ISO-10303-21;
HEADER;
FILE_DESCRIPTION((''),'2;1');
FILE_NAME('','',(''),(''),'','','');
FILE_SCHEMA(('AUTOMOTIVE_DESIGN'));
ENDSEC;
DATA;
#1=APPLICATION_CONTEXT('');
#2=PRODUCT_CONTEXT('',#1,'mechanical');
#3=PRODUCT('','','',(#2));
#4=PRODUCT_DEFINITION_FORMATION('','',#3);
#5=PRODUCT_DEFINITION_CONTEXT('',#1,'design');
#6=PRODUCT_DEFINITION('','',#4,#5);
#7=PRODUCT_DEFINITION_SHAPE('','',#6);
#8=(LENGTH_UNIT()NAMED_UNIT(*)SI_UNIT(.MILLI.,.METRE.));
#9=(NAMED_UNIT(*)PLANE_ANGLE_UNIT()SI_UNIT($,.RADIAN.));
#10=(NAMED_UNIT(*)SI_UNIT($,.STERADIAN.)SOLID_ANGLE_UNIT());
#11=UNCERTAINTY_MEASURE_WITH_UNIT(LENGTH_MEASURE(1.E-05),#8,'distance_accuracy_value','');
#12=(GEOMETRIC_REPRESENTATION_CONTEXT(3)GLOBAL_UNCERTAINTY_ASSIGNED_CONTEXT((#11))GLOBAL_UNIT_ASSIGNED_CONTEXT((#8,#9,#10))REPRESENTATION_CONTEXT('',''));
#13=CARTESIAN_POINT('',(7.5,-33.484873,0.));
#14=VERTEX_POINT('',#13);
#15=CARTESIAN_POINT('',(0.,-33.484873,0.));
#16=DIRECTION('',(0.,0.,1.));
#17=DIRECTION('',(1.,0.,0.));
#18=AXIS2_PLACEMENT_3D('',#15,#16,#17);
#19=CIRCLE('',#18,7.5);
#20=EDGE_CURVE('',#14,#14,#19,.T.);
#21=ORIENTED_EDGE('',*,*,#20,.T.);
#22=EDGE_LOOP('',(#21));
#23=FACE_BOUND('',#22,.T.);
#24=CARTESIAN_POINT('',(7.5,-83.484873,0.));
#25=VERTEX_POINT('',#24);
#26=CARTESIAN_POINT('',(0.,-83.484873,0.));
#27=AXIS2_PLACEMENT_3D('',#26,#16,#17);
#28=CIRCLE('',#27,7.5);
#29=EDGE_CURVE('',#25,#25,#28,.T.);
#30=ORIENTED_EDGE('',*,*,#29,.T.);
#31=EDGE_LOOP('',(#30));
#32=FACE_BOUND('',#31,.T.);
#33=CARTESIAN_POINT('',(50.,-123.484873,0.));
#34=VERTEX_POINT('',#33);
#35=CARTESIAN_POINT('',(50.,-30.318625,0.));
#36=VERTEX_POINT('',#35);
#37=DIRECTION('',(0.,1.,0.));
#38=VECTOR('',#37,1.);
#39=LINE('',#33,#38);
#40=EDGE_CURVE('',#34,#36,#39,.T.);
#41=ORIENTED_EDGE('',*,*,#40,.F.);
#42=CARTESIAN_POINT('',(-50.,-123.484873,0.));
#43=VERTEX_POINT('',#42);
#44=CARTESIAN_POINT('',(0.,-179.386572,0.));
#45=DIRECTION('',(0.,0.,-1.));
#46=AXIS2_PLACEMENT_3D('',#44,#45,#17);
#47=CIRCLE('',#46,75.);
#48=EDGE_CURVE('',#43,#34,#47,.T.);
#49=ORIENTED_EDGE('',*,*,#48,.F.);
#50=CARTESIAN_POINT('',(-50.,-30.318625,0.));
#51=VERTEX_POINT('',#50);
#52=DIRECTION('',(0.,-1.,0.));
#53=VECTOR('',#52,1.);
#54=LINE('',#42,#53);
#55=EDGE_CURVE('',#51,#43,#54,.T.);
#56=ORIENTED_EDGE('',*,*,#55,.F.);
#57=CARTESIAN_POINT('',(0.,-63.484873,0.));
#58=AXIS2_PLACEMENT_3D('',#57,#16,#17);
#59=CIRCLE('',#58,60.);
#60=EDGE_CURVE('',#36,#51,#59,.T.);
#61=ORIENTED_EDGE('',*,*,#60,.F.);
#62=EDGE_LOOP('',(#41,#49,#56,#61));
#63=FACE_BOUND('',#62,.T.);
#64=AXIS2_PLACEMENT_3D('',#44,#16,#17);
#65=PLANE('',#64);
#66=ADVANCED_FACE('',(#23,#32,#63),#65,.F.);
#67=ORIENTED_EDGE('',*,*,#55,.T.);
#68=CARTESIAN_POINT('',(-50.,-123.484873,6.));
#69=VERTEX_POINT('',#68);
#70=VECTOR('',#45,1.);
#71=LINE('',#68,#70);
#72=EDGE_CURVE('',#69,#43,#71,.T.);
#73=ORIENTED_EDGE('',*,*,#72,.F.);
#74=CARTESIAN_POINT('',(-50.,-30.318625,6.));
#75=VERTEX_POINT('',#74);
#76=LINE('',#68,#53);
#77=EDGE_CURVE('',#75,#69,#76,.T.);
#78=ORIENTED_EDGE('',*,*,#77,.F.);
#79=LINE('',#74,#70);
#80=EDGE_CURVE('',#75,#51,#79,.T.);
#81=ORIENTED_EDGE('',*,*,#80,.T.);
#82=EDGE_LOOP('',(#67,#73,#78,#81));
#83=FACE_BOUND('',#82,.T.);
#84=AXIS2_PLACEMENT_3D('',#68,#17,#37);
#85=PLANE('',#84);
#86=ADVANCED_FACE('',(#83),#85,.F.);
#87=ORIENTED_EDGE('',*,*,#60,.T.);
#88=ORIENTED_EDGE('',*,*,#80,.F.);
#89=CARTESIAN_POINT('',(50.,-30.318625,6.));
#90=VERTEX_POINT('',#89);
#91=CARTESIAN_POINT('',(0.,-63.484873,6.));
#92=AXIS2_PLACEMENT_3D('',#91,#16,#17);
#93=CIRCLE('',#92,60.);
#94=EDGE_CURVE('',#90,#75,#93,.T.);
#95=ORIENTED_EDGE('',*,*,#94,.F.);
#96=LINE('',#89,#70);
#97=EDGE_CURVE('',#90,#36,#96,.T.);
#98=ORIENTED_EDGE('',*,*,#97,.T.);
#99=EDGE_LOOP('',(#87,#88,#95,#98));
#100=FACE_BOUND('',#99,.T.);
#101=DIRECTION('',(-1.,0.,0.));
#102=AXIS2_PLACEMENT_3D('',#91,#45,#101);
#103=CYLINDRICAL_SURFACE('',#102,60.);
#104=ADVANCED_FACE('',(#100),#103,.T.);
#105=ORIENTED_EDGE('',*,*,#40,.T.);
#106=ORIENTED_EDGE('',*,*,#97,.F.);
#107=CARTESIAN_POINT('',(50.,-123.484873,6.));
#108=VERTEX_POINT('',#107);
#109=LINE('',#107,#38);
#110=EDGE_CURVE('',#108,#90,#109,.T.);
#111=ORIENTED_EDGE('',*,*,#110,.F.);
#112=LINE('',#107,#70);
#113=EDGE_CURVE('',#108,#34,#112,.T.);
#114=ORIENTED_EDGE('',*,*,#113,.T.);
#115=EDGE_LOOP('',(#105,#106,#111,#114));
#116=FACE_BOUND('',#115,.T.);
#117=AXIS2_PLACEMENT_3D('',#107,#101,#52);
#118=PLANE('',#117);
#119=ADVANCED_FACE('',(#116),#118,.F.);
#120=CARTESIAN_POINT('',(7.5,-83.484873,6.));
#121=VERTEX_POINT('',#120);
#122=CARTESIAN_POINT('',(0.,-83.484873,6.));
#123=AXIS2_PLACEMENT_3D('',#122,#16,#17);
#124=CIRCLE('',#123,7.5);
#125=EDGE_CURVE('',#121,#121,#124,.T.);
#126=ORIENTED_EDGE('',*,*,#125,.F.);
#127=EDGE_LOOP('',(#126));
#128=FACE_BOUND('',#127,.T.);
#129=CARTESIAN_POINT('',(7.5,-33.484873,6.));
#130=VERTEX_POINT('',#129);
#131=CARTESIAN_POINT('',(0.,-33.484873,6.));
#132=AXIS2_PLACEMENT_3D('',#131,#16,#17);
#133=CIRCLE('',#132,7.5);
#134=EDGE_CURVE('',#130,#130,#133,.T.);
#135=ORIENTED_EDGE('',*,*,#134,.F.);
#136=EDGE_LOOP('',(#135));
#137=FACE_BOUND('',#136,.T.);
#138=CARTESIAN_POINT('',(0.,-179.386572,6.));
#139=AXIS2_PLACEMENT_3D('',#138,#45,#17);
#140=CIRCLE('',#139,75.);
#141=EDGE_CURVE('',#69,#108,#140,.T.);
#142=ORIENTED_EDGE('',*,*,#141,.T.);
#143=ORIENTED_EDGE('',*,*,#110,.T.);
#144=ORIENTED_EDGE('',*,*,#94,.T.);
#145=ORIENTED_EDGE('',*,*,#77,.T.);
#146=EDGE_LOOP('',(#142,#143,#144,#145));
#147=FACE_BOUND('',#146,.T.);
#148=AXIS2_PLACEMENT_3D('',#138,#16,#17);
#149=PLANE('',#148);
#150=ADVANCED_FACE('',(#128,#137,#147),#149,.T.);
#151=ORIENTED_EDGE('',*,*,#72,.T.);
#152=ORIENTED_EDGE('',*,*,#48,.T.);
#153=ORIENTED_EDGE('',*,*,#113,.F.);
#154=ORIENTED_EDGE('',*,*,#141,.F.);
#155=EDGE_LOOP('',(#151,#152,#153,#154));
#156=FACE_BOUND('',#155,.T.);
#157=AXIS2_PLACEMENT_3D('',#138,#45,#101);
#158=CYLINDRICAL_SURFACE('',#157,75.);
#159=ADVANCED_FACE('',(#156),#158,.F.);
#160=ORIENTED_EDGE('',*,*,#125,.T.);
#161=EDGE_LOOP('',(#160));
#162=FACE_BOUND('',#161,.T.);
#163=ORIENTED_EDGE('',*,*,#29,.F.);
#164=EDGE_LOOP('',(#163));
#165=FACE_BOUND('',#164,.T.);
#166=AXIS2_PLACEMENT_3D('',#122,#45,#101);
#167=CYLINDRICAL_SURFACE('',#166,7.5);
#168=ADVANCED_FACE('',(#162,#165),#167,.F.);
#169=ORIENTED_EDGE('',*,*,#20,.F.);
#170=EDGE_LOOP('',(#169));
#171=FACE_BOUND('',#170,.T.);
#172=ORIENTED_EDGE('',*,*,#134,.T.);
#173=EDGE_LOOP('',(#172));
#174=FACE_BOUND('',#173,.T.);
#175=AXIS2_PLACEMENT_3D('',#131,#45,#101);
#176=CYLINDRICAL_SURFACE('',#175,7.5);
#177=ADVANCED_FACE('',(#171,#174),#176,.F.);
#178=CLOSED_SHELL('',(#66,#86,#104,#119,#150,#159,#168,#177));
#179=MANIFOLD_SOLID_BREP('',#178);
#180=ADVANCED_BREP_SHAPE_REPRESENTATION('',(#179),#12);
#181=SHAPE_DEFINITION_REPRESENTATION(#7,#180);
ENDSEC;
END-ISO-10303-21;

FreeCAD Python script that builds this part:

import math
import FreeCAD as App
import Part
import Sketcher
from FreeCAD import Vector
Q = App.Units.Quantity

doc = App.newDocument("Part")
body = doc.addObject("PartDesign::Body", "Body")

# Sketch on XY plane
sketch1 = doc.addObject("Sketcher::SketchObject", "Sketch")
body.addObject(sketch1)
sketch1.AttachmentSupport = (doc.XY_Plane, [""])
sketch1.MapMode = "FlatFace"
sketch1.addGeometry([
    Part.LineSegment(Vector(-50, -30, 0), Vector(-50, -123, 0)),  # 0
    Part.ArcOfCircle(Part.Circle(Vector(0, -179, 0), Vector(0, 0, 1), 75), math.radians(48), math.radians(132)),  # 1
    Part.LineSegment(Vector(50, -123, 0), Vector(50, -30, 0)),  # 2
    Part.ArcOfCircle(Part.Circle(Vector(0, -63, 0), Vector(0, 0, 1), 60), math.radians(34), math.radians(146)),  # 3
    Part.Circle(Vector(0, -83, 0), Vector(0, 0, 1), 8),  # 4
    Part.Circle(Vector(0, -33, 0), Vector(0, 0, 1), 8),  # 5
], False)
sketch1.addConstraint([
    Sketcher.Constraint("Coincident", 0, 2, 1, 2),
    Sketcher.Constraint("Coincident", 1, 1, 2, 1),
    Sketcher.Constraint("Coincident", 2, 2, 3, 1),
    Sketcher.Constraint("Coincident", 3, 2, 0, 1),
    Sketcher.Constraint("Vertical", 0),
    Sketcher.Constraint("Vertical", 2),
    Sketcher.Constraint("Equal", 4, 5),
    Sketcher.Constraint("Symmetric", 0, 2, 1, 1, -2),
    Sketcher.Constraint("PointOnObject", 3, 3, -2),
    Sketcher.Constraint("PointOnObject", 4, 3, -2),
    Sketcher.Constraint("PointOnObject", 5, 3, -2),
    Sketcher.Constraint("Diameter", 4, Q("15 mm")),
    Sketcher.Constraint("Radius", 1, Q("75 mm")),
    Sketcher.Constraint("Radius", 3, Q("60 mm")),
    Sketcher.Constraint("DistanceX", 0, 2, -1, 1, Q("50 mm")),
    Sketcher.Constraint("DistanceY", 4, 3, 3, 3, Q("20 mm")),
    Sketcher.Constraint("DistanceY", 3, 3, 5, 3, Q("30 mm")),
    Sketcher.Constraint("DistanceY", 0, 2, 4, 3, Q("40 mm")),
    Sketcher.Constraint("DistanceY", 1, 3, -1, 1, Q("179.386572 mm")),
])
pad1 = doc.addObject("PartDesign::Pad", "Pad")
body.addObject(pad1)
pad1.Profile = sketch1
pad1.Length = 6

doc.recompute()
